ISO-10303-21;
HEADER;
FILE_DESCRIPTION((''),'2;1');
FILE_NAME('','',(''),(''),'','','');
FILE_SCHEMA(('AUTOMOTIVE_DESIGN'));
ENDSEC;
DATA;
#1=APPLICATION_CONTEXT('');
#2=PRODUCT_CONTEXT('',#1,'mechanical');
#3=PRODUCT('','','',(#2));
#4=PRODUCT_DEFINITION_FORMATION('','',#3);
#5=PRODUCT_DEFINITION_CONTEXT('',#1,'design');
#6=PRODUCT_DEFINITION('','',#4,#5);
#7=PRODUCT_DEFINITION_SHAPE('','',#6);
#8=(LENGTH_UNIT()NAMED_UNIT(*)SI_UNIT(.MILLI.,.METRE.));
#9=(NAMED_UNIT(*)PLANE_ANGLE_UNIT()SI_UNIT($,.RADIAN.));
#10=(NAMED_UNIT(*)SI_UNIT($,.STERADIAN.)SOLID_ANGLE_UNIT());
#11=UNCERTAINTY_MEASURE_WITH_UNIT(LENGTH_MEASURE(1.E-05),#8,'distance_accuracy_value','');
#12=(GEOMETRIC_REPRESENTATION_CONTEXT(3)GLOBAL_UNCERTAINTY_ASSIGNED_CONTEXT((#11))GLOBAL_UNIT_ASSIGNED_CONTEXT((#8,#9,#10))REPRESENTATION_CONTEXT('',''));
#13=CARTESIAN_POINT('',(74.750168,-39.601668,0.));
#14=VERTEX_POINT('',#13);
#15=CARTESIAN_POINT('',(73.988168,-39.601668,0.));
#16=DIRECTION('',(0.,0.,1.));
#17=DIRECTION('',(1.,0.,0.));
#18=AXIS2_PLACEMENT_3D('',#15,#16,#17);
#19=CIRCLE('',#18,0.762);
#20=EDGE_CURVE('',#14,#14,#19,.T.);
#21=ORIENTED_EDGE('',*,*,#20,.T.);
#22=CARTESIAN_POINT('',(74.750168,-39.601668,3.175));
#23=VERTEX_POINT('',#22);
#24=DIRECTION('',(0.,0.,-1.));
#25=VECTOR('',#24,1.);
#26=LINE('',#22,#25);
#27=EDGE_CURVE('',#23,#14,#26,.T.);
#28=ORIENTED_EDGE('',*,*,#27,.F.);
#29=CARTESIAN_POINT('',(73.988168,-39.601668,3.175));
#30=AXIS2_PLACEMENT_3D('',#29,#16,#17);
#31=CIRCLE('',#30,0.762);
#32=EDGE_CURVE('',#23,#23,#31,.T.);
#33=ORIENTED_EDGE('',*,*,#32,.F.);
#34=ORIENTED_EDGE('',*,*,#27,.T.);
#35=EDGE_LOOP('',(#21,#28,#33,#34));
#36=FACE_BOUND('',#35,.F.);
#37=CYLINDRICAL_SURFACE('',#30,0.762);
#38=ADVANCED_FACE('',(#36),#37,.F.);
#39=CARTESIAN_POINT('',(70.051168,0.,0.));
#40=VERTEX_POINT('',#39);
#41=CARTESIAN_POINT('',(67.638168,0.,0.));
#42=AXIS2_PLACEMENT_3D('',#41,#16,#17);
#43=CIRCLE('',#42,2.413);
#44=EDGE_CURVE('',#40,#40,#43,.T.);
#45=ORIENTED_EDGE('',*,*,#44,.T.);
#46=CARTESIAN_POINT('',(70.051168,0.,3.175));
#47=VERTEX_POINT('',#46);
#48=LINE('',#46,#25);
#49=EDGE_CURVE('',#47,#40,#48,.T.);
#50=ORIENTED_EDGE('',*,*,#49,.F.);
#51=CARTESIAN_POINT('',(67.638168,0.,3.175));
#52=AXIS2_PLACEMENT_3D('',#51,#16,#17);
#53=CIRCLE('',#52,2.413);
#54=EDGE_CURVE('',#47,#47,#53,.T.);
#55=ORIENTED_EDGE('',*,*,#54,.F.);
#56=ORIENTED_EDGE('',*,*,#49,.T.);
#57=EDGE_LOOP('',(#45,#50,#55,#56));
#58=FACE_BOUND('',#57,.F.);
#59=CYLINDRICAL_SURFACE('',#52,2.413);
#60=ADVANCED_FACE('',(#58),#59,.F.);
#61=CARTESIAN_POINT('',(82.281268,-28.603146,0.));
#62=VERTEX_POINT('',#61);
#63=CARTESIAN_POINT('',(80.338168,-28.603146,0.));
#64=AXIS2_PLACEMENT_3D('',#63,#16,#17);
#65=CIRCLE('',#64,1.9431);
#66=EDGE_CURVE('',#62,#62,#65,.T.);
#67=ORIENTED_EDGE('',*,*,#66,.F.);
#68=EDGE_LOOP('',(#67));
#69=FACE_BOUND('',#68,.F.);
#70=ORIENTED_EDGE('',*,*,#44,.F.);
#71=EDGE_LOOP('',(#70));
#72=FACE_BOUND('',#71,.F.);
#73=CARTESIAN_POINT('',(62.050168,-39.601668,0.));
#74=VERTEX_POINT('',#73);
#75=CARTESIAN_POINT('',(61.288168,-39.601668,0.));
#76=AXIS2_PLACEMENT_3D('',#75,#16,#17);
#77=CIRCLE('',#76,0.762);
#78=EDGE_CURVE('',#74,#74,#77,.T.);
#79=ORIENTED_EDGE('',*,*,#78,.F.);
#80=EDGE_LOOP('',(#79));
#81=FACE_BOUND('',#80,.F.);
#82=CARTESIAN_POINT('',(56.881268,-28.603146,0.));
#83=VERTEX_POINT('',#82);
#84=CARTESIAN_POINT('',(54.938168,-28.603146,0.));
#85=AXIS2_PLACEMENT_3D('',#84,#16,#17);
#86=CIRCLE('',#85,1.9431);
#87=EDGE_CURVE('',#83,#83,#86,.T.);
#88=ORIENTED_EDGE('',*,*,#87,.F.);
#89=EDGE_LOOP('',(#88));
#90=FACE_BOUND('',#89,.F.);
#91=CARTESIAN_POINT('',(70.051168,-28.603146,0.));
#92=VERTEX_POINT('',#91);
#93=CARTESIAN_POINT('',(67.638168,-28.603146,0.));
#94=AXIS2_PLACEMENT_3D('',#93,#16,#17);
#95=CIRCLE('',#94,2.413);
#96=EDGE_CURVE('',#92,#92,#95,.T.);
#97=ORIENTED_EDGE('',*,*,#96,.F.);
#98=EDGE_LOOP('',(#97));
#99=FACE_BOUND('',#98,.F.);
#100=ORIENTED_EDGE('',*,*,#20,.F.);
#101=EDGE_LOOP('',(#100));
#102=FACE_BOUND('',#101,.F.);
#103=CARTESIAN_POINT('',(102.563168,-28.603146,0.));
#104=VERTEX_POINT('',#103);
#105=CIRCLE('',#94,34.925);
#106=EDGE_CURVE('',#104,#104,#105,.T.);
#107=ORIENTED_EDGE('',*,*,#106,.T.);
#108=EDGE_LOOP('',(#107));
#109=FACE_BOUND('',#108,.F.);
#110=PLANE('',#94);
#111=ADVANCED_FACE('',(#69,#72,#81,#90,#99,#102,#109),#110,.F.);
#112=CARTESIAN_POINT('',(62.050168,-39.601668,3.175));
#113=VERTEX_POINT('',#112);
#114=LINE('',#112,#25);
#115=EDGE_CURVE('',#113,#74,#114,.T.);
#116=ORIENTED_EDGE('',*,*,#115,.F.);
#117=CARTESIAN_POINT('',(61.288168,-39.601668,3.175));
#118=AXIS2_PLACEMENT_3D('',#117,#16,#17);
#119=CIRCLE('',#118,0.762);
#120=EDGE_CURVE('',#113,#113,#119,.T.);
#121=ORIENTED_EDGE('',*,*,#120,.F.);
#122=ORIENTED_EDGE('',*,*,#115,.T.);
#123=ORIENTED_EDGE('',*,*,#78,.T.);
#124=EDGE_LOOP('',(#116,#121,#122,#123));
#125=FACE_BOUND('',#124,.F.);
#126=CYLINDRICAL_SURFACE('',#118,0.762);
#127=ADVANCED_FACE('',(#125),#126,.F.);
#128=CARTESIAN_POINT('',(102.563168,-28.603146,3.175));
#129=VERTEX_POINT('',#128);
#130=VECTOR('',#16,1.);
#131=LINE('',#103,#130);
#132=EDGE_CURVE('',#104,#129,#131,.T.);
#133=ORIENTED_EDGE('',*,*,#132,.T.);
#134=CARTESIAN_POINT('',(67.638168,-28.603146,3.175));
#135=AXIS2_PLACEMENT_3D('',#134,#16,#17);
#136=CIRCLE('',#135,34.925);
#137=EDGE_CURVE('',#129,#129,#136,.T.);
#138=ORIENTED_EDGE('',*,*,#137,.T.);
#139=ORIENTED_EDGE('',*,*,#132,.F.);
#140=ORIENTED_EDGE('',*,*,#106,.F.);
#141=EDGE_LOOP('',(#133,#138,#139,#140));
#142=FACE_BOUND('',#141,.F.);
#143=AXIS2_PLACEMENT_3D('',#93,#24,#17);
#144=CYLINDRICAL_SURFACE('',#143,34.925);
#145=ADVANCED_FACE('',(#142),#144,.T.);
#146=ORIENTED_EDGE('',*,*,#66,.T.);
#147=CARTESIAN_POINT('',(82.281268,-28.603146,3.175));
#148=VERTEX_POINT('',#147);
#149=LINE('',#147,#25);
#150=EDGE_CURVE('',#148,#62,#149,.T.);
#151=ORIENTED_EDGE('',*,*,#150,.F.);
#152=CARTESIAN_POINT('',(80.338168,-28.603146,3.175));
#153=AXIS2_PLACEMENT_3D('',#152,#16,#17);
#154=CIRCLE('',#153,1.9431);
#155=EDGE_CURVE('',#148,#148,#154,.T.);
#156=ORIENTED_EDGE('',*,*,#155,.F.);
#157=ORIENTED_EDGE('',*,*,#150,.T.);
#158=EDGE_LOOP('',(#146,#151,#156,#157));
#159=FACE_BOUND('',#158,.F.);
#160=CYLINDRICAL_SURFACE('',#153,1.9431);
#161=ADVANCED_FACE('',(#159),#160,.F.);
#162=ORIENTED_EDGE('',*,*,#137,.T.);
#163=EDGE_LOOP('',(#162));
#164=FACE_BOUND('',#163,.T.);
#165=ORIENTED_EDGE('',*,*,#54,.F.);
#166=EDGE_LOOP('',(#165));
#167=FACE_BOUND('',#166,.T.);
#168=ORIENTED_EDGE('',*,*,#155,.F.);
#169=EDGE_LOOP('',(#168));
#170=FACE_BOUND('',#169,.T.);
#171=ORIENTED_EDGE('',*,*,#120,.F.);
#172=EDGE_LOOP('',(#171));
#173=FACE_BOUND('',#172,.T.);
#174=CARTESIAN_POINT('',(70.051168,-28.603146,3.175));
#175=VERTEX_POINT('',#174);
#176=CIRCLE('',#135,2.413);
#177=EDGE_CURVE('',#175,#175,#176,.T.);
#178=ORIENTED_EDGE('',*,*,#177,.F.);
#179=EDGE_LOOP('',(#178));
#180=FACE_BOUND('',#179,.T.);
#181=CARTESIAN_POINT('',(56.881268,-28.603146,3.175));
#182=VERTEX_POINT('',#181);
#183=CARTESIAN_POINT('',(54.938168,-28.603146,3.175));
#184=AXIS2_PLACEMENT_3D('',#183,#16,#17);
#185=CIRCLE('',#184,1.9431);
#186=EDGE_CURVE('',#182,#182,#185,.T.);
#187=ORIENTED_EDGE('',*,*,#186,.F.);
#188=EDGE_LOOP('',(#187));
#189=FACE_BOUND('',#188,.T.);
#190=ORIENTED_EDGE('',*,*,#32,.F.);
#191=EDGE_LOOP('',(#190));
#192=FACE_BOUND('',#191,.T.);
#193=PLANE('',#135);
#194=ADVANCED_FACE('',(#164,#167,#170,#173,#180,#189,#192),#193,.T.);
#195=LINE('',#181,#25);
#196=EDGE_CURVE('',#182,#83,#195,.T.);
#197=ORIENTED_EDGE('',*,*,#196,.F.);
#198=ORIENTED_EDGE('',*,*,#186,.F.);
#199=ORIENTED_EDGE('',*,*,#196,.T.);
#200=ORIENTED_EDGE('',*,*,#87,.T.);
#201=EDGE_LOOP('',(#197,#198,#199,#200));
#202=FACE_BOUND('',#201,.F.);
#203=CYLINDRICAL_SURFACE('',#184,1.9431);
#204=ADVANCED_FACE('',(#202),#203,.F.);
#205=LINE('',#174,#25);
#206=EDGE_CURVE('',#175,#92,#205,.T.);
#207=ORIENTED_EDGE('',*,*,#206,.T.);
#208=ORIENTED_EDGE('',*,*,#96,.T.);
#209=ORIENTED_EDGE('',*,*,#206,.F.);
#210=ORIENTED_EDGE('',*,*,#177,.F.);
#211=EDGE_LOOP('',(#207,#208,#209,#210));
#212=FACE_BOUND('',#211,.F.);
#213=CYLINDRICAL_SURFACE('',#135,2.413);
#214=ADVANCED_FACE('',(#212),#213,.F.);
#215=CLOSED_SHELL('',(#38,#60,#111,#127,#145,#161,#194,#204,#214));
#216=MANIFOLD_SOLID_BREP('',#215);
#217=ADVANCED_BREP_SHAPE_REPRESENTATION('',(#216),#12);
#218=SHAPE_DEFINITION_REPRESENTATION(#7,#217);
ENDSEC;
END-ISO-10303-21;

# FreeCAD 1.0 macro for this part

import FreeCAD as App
import Part
import Sketcher
Q = App.Units.Quantity

doc = App.newDocument("Part")
body = doc.addObject("PartDesign::Body", "Body")

# Sketch on XY plane
sketch1 = body.newObject("Sketcher::SketchObject", "Sketch")
sketch1.AttachmentSupport = (doc.getObject("XY_Plane"), [""])
sketch1.MapMode = "FlatFace"
sketch1.addGeometry(Part.Circle(App.Vector(68, -29, 0), App.Vector(0, 0, 1), 35), False)
sketch1.addConstraint(Sketcher.Constraint("Diameter", 0, Q("2.75 in")))
sketch1.addConstraint(Sketcher.Constraint("DistanceX", -1, 1, 0, 3, 67.638168))
sketch1.addConstraint(Sketcher.Constraint("DistanceY", 0, 3, -1, 1, 28.603146))
pad1 = body.newObject("PartDesign::Pad", "Pad")
pad1.Profile = sketch1
pad1.Length = Q("0.125 in")

# Sketch on XY plane
sketch2 = body.newObject("Sketcher::SketchObject", "Sketch001")
sketch2.AttachmentSupport = (doc.getObject("XY_Plane"), [""])
sketch2.MapMode = "FlatFace"
sketch2.AttachmentOffset = App.Placement(App.Vector(0, 0, 0.125 * 25.4), App.Rotation())
sketch2.addGeometry(Part.Circle(App.Vector(67.6, 0, 0), App.Vector(0, 0, 1), 2.4), False)
sketch2.addConstraint(Sketcher.Constraint("PointOnObject", 0, 3, -1))
sketch2.addConstraint(Sketcher.Constraint("Diameter", 0, Q("0.19 in")))
sketch2.addConstraint(Sketcher.Constraint("DistanceX", -1, 1, 0, 3, 67.638168))
pocket1 = body.newObject("PartDesign::Pocket", "Pocket")
pocket1.Profile = sketch2
pocket1.Type = "UpToFirst"

# Sketch on XY plane
sketch3 = body.newObject("Sketcher::SketchObject", "Sketch002")
sketch3.AttachmentSupport = (doc.getObject("XY_Plane"), [""])
sketch3.MapMode = "FlatFace"
sketch3.AttachmentOffset = App.Placement(App.Vector(0, 0, 0.125 * 25.4), App.Rotation())
sketch3.addGeometry(Part.Circle(App.Vector(67.6, -28.6, 0), App.Vector(0, 0, 1), 2.4), False)
sketch3.addConstraint(Sketcher.Constraint("Diameter", 0, Q("0.19 in")))
sketch3.addConstraint(Sketcher.Constraint("DistanceX", -1, 1, 0, 3, 67.638168))
sketch3.addConstraint(Sketcher.Constraint("DistanceY", 0, 3, -1, 1, 28.603146))
pocket2 = body.newObject("PartDesign::Pocket", "Pocket001")
pocket2.Profile = sketch3
pocket2.Type = "UpToFirst"

# Sketch on XY plane
sketch4 = body.newObject("Sketcher::SketchObject", "Sketch003")
sketch4.AttachmentSupport = (doc.getObject("XY_Plane"), [""])
sketch4.MapMode = "FlatFace"
sketch4.AttachmentOffset = App.Placement(App.Vector(0, 0, 0.125 * 25.4), App.Rotation())
sketch4.addGeometry(Part.Circle(App.Vector(54.9, -28.6, 0), App.Vector(0, 0, 1), 1.9), False)
sketch4.addConstraint(Sketcher.Constraint("Diameter", 0, Q("0.153 in")))
sketch4.addConstraint(Sketcher.Constraint("DistanceX", -1, 1, 0, 3, 54.938168))
sketch4.addConstraint(Sketcher.Constraint("DistanceY", 0, 3, -1, 1, 28.603146))
pocket3 = body.newObject("PartDesign::Pocket", "Pocket002")
pocket3.Profile = sketch4
pocket3.Type = "UpToFirst"

# Sketch on XY plane
sketch5 = body.newObject("Sketcher::SketchObject", "Sketch004")
sketch5.AttachmentSupport = (doc.getObject("XY_Plane"), [""])
sketch5.MapMode = "FlatFace"
sketch5.AttachmentOffset = App.Placement(App.Vector(0, 0, 0.125 * 25.4), App.Rotation())
sketch5.addGeometry(Part.Circle(App.Vector(61.3, -39.6, 0), App.Vector(0, 0, 1), 0.8), False)
sketch5.addConstraint(Sketcher.Constraint("Diameter", 0, Q("0.06 in")))
sketch5.addConstraint(Sketcher.Constraint("DistanceY", 0, 3, -1, 1, 39.601668))
sketch5.addConstraint(Sketcher.Constraint("DistanceX", -1, 1, 0, 3, 61.288168))
pocket4 = body.newObject("PartDesign::Pocket", "Pocket003")
pocket4.Profile = sketch5
pocket4.Type = "UpToFirst"

# Sketch on XY plane
sketch6 = body.newObject("Sketcher::SketchObject", "Sketch005")
sketch6.AttachmentSupport = (doc.getObject("XY_Plane"), [""])
sketch6.MapMode = "FlatFace"
sketch6.AttachmentOffset = App.Placement(App.Vector(0, 0, 0.125 * 25.4), App.Rotation())
sketch6.addGeometry(Part.Circle(App.Vector(80.3, -28.6, 0), App.Vector(0, 0, 1), 1.9), False)
sketch6.addConstraint(Sketcher.Constraint("Diameter", 0, Q("0.153 in")))
sketch6.addConstraint(Sketcher.Constraint("DistanceX", -1, 1, 0, 3, 80.338168))
sketch6.addConstraint(Sketcher.Constraint("DistanceY", 0, 3, -1, 1, 28.603146))
pocket5 = body.newObject("PartDesign::Pocket", "Pocket004")
pocket5.Profile = sketch6
pocket5.Type = "UpToFirst"

# Sketch on XY plane
sketch7 = body.newObject("Sketcher::SketchObject", "Sketch006")
sketch7.AttachmentSupport = (doc.getObject("XY_Plane"), [""])
sketch7.MapMode = "FlatFace"
sketch7.AttachmentOffset = App.Placement(App.Vector(0, 0, 0.125 * 25.4), App.Rotation())
sketch7.addGeometry(Part.Circle(App.Vector(74, -39.6, 0), App.Vector(0, 0, 1), 0.8), False)
sketch7.addConstraint(Sketcher.Constraint("Diameter", 0, Q("0.06 in")))
sketch7.addConstraint(Sketcher.Constraint("DistanceX", -1, 1, 0, 3, 73.988168))
sketch7.addConstraint(Sketcher.Constraint("DistanceY", 0, 3, -1, 1, 39.601668))
pocket6 = body.newObject("PartDesign::Pocket", "Pocket005")
pocket6.Profile = sketch7
pocket6.Type = "UpToFirst"

doc.recompute()
